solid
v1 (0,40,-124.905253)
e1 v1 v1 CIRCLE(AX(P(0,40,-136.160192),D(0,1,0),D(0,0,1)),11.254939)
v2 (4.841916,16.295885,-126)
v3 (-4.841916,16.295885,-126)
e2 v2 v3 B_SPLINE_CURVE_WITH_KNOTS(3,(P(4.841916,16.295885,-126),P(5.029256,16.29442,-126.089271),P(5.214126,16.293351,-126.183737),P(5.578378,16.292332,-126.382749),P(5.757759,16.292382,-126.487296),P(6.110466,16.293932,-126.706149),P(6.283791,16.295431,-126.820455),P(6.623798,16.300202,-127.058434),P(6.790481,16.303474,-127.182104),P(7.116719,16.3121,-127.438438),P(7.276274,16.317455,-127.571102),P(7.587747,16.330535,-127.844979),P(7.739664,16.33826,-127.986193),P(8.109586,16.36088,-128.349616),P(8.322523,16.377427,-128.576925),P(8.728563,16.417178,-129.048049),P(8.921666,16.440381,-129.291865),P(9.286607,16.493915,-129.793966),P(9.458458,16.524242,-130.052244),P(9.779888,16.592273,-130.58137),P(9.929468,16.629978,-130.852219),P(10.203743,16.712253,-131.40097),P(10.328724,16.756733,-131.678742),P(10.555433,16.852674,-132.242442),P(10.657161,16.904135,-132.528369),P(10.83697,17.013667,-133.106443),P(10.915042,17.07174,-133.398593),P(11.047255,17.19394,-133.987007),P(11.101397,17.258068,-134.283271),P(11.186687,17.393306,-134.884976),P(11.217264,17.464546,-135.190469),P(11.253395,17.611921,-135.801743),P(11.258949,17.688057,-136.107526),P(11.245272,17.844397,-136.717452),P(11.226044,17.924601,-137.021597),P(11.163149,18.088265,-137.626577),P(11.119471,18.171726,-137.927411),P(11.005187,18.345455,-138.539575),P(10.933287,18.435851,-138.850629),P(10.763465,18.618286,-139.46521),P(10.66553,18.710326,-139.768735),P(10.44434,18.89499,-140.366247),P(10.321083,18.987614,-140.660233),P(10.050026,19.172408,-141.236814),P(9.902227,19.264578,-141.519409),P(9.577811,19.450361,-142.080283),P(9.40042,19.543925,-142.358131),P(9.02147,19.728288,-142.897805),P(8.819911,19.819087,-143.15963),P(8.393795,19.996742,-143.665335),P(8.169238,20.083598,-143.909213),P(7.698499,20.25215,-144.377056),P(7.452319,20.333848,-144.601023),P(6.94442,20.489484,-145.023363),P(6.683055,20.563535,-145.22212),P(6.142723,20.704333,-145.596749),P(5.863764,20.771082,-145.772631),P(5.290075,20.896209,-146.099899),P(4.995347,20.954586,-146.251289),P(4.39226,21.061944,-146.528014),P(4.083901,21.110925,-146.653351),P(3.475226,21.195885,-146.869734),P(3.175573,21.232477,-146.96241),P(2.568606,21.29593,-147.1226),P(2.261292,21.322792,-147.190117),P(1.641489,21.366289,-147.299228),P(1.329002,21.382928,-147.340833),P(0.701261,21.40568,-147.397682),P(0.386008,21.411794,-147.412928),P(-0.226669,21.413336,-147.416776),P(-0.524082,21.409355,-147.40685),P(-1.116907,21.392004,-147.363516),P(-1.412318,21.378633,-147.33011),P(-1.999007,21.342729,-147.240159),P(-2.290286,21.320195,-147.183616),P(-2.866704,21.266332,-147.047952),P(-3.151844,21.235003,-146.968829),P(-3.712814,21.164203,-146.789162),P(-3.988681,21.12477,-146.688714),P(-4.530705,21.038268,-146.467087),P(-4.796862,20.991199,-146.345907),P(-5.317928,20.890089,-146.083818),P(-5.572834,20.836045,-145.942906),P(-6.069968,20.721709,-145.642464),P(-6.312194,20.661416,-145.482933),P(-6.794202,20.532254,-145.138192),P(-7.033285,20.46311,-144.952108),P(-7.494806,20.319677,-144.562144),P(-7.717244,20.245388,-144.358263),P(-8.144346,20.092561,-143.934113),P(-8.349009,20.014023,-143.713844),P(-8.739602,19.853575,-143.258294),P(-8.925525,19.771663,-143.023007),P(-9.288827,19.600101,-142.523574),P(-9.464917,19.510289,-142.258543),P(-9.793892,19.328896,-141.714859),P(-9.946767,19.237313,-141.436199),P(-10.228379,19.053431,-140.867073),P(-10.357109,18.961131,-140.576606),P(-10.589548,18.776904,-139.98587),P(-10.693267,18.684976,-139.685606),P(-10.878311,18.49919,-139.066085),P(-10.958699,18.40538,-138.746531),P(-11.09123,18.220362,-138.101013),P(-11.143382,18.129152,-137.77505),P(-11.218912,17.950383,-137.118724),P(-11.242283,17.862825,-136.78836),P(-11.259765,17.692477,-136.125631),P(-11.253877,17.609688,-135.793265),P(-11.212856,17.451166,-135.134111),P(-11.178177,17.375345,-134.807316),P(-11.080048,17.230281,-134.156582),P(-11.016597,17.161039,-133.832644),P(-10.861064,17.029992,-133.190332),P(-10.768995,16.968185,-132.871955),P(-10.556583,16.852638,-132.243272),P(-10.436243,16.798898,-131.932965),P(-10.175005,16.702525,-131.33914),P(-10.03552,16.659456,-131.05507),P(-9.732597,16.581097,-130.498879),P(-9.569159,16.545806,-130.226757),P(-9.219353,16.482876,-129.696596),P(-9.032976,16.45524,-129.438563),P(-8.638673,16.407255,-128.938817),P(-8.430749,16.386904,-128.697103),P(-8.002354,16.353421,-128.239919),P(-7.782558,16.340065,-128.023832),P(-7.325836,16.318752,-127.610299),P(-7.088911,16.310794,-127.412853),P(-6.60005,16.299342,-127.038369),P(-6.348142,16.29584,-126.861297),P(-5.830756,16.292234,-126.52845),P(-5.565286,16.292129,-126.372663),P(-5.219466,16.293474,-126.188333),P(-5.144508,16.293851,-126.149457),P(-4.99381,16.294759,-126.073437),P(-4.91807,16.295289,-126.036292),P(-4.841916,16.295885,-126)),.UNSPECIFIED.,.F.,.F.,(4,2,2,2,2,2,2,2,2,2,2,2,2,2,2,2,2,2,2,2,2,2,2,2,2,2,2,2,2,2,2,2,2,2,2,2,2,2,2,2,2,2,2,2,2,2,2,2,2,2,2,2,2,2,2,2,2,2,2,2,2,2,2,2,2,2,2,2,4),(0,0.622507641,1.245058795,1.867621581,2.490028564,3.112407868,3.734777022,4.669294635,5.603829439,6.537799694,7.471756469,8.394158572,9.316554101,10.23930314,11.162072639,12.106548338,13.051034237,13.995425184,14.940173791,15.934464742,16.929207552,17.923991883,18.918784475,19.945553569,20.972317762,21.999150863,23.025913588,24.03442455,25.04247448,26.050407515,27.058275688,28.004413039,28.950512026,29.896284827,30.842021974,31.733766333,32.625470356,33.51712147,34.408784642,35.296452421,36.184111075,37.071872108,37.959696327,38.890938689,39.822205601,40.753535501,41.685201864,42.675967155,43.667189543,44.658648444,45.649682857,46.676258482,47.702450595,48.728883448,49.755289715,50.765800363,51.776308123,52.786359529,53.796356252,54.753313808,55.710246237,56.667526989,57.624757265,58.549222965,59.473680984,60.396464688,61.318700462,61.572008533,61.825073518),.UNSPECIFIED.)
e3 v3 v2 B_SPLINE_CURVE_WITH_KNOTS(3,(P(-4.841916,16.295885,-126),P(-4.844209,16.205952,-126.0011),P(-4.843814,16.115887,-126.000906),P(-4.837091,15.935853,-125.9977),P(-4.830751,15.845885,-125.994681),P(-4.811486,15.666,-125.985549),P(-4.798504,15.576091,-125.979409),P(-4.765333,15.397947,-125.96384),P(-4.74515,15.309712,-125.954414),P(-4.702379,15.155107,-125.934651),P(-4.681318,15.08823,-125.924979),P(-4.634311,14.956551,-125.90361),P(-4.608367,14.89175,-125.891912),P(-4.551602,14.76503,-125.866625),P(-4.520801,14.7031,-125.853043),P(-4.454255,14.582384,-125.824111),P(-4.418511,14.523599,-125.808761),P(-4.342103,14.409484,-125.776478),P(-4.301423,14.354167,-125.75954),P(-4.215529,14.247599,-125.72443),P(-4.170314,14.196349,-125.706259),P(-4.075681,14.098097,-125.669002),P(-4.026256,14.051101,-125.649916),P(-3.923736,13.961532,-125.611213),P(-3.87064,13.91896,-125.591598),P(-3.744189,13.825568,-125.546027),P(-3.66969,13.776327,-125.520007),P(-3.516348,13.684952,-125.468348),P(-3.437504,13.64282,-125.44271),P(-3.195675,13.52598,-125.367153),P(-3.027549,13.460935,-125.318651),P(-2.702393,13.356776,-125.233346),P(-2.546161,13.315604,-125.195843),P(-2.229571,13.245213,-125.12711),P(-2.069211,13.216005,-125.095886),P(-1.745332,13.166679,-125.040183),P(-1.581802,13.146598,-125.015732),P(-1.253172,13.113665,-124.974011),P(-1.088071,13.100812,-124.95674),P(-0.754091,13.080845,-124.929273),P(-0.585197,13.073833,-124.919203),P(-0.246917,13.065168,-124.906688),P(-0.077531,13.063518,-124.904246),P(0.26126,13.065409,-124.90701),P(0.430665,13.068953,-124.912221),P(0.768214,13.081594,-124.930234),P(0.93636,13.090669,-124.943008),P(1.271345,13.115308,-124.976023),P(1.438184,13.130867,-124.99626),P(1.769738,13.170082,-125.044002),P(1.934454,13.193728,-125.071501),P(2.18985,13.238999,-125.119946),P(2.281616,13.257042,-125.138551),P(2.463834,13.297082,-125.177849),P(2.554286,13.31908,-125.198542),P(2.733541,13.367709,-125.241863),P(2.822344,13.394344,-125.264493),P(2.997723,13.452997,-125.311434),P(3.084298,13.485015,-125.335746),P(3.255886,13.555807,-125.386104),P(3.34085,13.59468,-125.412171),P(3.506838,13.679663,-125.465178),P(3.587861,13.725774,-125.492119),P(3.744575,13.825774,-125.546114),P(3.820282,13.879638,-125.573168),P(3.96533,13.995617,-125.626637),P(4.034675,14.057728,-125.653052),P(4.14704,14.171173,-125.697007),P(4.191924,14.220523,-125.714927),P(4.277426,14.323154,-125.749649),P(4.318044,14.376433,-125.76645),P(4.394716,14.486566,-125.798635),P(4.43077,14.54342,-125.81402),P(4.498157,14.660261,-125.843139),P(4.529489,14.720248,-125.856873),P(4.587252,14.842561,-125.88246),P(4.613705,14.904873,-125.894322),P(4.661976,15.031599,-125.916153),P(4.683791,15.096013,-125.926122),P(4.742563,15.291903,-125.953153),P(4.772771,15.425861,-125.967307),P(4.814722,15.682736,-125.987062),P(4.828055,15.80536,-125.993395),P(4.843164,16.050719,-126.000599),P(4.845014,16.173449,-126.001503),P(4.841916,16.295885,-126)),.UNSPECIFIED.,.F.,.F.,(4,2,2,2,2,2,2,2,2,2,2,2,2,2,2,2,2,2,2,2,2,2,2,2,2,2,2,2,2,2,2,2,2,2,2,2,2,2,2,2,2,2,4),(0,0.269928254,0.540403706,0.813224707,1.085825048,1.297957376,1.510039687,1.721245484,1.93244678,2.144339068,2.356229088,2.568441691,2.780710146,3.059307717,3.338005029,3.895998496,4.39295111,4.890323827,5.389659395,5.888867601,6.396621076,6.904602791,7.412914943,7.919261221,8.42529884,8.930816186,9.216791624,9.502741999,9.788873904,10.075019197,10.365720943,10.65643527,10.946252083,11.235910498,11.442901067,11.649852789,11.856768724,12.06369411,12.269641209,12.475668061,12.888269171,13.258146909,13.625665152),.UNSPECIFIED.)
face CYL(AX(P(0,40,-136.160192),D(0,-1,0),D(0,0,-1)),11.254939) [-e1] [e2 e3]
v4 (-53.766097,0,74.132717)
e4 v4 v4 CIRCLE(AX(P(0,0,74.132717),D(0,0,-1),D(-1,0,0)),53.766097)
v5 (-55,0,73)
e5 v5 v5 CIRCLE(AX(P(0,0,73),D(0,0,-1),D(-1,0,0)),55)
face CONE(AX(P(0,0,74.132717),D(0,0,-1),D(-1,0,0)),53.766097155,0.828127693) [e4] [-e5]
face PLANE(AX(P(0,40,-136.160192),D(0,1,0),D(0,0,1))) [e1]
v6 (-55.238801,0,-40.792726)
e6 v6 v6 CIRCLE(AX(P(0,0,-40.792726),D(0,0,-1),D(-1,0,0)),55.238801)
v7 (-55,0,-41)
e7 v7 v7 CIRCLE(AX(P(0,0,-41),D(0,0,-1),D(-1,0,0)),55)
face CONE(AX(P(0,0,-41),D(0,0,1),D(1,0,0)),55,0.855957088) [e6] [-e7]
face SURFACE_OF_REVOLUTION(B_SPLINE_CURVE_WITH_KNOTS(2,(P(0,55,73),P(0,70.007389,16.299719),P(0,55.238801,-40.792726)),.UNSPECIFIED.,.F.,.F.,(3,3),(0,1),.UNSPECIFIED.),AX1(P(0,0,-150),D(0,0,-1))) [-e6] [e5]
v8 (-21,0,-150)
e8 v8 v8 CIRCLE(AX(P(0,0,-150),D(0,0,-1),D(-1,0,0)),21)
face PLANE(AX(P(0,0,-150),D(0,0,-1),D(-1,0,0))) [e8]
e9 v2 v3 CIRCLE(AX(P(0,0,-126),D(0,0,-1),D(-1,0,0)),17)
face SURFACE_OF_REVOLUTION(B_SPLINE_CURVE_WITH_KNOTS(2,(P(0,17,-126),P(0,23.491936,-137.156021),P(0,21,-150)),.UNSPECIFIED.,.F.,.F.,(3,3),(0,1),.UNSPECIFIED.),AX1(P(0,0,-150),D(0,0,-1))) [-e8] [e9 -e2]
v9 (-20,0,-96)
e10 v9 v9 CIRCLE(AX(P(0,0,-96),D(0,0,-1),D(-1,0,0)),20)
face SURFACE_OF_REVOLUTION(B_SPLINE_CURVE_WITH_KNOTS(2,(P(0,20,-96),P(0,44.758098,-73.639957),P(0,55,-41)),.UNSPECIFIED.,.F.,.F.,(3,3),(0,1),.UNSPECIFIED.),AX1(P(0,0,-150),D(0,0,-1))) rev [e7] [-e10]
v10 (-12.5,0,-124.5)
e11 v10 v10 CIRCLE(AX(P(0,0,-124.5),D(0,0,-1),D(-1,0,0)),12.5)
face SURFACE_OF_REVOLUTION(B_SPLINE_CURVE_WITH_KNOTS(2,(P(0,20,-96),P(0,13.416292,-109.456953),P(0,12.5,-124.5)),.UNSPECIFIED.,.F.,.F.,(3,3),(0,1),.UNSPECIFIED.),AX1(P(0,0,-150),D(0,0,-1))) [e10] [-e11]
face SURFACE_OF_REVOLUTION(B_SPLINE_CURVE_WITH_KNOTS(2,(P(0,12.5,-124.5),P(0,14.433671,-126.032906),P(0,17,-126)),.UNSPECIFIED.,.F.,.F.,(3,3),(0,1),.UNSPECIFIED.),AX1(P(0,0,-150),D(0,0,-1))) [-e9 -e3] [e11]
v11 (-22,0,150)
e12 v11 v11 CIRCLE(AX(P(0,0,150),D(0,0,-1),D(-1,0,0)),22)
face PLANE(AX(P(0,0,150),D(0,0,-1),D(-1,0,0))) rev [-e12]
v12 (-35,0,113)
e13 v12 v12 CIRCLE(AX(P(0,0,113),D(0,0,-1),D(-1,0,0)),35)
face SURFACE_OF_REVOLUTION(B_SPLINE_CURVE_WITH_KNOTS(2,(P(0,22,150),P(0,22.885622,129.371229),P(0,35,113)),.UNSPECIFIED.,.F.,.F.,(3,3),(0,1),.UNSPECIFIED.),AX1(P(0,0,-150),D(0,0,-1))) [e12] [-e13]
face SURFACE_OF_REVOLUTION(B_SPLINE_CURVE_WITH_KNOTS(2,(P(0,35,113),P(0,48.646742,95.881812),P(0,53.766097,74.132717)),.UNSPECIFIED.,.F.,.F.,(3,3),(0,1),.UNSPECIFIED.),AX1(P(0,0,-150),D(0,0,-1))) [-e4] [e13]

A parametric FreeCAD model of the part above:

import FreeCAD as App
import Part
import Sketcher
from FreeCAD import Vector
Q = App.Units.Quantity

doc = App.newDocument("Part")
body = doc.addObject("PartDesign::Body", "Body")

sketch1 = body.newObject("Sketcher::SketchObject", "Sketch")
sketch1.AttachmentSupport = (doc.getObject("YZ_Plane"), [""])
sketch1.MapMode = "FlatFace"
sketch1.addGeometry([
    Part.LineSegment(Vector(0, 150, 0), Vector(0, -150, 0)),
    Part.LineSegment(Vector(0, -150, 0), Vector(21, -150, 0)),
    Part.BSplineCurve([Vector(17, -126, 0), Vector(23.491936, -137.156021, 0), Vector(21, -150, 0)], [3, 3], [0, 1], False, 2, [1, 1, 1], False),
    Part.BSplineCurve([Vector(12.5, -124.5, 0), Vector(14.433671, -126.032906, 0), Vector(17, -126, 0)], [3, 3], [0, 1], False, 2, [1, 1, 1], False),
    Part.BSplineCurve([Vector(20, -96, 0), Vector(13.416292, -109.456953, 0), Vector(12.5, -124.5, 0)], [3, 3], [0, 1], False, 2, [1, 1, 1], False),
    Part.BSplineCurve([Vector(20, -96, 0), Vector(44.758098, -73.639957, 0), Vector(55, -41, 0)], [3, 3], [0, 1], False, 2, [1, 1, 1], False),
    Part.LineSegment(Vector(55, -41, 0), Vector(55.238801, -40.792726, 0)),
    Part.BSplineCurve([Vector(55, 73, 0), Vector(70.007389, 16.299719, 0), Vector(55.238801, -40.792726, 0)], [3, 3], [0, 1], False, 2, [1, 1, 1], False),
    Part.LineSegment(Vector(55, 73, 0), Vector(53.766097, 74.132717, 0)),
    Part.BSplineCurve([Vector(35, 113, 0), Vector(48.646742, 95.881812, 0), Vector(53.766097, 74.132717, 0)], [3, 3], [0, 1], False, 2, [1, 1, 1], False),
    Part.BSplineCurve([Vector(22, 150, 0), Vector(22.885622, 129.371229, 0), Vector(35, 113, 0)], [3, 3], [0, 1], False, 2, [1, 1, 1], False),
    Part.LineSegment(Vector(22, 150, 0), Vector(0, 150, 0)),
], False)
sketch1.addConstraint([
    Sketcher.Constraint("Block", 2),
    Sketcher.Constraint("Block", 3),
    Sketcher.Constraint("Block", 4),
    Sketcher.Constraint("Block", 5),
    Sketcher.Constraint("Block", 7),
    Sketcher.Constraint("Block", 9),
    Sketcher.Constraint("Block", 10),
    Sketcher.Constraint("Coincident", 0, 2, 1, 1),
    Sketcher.Constraint("Coincident", 1, 2, 2, 2),
    Sketcher.Constraint("Coincident", 5, 2, 6, 1),
    Sketcher.Constraint("Coincident", 6, 2, 7, 2),
    Sketcher.Constraint("Coincident", 7, 1, 8, 1),
    Sketcher.Constraint("Coincident", 8, 2, 9, 2),
    Sketcher.Constraint("Coincident", 10, 1, 11, 1),
    Sketcher.Constraint("Coincident", 11, 2, 0, 1),
    Sketcher.Constraint("Vertical", 0),
    Sketcher.Constraint("Horizontal", 1),
    Sketcher.Constraint("Horizontal", 11),
    Sketcher.Constraint("PointOnObject", 0, 2, -2),
])
revolution = body.newObject("PartDesign::Revolution", "Revolution")
revolution.Profile = sketch1
revolution.ReferenceAxis = (sketch1, ["V_Axis"])
revolution.Angle = 360

sketch2 = body.newObject("Sketcher::SketchObject", "Sketch001")
sketch2.AttachmentSupport = (doc.getObject("XZ_Plane"), [""])
sketch2.MapMode = "FlatFace"
sketch2.addGeometry(Part.Circle(Vector(0, -136, 0), Vector(0, 0, 1), 11), False)
sketch2.addConstraint([
    Sketcher.Constraint("PointOnObject", 0, 3, -2),
    Sketcher.Constraint("Diameter", 0, Q("22.509877 mm")),
    Sketcher.Constraint("DistanceY", 0, 3, -1, 1, Q("136.160192 mm")),
])
pad1 = body.newObject("PartDesign::Pad", "Pad")
pad1.Profile = sketch2
pad1.Length = 40
pad1.Reversed = True

doc.recompute()
